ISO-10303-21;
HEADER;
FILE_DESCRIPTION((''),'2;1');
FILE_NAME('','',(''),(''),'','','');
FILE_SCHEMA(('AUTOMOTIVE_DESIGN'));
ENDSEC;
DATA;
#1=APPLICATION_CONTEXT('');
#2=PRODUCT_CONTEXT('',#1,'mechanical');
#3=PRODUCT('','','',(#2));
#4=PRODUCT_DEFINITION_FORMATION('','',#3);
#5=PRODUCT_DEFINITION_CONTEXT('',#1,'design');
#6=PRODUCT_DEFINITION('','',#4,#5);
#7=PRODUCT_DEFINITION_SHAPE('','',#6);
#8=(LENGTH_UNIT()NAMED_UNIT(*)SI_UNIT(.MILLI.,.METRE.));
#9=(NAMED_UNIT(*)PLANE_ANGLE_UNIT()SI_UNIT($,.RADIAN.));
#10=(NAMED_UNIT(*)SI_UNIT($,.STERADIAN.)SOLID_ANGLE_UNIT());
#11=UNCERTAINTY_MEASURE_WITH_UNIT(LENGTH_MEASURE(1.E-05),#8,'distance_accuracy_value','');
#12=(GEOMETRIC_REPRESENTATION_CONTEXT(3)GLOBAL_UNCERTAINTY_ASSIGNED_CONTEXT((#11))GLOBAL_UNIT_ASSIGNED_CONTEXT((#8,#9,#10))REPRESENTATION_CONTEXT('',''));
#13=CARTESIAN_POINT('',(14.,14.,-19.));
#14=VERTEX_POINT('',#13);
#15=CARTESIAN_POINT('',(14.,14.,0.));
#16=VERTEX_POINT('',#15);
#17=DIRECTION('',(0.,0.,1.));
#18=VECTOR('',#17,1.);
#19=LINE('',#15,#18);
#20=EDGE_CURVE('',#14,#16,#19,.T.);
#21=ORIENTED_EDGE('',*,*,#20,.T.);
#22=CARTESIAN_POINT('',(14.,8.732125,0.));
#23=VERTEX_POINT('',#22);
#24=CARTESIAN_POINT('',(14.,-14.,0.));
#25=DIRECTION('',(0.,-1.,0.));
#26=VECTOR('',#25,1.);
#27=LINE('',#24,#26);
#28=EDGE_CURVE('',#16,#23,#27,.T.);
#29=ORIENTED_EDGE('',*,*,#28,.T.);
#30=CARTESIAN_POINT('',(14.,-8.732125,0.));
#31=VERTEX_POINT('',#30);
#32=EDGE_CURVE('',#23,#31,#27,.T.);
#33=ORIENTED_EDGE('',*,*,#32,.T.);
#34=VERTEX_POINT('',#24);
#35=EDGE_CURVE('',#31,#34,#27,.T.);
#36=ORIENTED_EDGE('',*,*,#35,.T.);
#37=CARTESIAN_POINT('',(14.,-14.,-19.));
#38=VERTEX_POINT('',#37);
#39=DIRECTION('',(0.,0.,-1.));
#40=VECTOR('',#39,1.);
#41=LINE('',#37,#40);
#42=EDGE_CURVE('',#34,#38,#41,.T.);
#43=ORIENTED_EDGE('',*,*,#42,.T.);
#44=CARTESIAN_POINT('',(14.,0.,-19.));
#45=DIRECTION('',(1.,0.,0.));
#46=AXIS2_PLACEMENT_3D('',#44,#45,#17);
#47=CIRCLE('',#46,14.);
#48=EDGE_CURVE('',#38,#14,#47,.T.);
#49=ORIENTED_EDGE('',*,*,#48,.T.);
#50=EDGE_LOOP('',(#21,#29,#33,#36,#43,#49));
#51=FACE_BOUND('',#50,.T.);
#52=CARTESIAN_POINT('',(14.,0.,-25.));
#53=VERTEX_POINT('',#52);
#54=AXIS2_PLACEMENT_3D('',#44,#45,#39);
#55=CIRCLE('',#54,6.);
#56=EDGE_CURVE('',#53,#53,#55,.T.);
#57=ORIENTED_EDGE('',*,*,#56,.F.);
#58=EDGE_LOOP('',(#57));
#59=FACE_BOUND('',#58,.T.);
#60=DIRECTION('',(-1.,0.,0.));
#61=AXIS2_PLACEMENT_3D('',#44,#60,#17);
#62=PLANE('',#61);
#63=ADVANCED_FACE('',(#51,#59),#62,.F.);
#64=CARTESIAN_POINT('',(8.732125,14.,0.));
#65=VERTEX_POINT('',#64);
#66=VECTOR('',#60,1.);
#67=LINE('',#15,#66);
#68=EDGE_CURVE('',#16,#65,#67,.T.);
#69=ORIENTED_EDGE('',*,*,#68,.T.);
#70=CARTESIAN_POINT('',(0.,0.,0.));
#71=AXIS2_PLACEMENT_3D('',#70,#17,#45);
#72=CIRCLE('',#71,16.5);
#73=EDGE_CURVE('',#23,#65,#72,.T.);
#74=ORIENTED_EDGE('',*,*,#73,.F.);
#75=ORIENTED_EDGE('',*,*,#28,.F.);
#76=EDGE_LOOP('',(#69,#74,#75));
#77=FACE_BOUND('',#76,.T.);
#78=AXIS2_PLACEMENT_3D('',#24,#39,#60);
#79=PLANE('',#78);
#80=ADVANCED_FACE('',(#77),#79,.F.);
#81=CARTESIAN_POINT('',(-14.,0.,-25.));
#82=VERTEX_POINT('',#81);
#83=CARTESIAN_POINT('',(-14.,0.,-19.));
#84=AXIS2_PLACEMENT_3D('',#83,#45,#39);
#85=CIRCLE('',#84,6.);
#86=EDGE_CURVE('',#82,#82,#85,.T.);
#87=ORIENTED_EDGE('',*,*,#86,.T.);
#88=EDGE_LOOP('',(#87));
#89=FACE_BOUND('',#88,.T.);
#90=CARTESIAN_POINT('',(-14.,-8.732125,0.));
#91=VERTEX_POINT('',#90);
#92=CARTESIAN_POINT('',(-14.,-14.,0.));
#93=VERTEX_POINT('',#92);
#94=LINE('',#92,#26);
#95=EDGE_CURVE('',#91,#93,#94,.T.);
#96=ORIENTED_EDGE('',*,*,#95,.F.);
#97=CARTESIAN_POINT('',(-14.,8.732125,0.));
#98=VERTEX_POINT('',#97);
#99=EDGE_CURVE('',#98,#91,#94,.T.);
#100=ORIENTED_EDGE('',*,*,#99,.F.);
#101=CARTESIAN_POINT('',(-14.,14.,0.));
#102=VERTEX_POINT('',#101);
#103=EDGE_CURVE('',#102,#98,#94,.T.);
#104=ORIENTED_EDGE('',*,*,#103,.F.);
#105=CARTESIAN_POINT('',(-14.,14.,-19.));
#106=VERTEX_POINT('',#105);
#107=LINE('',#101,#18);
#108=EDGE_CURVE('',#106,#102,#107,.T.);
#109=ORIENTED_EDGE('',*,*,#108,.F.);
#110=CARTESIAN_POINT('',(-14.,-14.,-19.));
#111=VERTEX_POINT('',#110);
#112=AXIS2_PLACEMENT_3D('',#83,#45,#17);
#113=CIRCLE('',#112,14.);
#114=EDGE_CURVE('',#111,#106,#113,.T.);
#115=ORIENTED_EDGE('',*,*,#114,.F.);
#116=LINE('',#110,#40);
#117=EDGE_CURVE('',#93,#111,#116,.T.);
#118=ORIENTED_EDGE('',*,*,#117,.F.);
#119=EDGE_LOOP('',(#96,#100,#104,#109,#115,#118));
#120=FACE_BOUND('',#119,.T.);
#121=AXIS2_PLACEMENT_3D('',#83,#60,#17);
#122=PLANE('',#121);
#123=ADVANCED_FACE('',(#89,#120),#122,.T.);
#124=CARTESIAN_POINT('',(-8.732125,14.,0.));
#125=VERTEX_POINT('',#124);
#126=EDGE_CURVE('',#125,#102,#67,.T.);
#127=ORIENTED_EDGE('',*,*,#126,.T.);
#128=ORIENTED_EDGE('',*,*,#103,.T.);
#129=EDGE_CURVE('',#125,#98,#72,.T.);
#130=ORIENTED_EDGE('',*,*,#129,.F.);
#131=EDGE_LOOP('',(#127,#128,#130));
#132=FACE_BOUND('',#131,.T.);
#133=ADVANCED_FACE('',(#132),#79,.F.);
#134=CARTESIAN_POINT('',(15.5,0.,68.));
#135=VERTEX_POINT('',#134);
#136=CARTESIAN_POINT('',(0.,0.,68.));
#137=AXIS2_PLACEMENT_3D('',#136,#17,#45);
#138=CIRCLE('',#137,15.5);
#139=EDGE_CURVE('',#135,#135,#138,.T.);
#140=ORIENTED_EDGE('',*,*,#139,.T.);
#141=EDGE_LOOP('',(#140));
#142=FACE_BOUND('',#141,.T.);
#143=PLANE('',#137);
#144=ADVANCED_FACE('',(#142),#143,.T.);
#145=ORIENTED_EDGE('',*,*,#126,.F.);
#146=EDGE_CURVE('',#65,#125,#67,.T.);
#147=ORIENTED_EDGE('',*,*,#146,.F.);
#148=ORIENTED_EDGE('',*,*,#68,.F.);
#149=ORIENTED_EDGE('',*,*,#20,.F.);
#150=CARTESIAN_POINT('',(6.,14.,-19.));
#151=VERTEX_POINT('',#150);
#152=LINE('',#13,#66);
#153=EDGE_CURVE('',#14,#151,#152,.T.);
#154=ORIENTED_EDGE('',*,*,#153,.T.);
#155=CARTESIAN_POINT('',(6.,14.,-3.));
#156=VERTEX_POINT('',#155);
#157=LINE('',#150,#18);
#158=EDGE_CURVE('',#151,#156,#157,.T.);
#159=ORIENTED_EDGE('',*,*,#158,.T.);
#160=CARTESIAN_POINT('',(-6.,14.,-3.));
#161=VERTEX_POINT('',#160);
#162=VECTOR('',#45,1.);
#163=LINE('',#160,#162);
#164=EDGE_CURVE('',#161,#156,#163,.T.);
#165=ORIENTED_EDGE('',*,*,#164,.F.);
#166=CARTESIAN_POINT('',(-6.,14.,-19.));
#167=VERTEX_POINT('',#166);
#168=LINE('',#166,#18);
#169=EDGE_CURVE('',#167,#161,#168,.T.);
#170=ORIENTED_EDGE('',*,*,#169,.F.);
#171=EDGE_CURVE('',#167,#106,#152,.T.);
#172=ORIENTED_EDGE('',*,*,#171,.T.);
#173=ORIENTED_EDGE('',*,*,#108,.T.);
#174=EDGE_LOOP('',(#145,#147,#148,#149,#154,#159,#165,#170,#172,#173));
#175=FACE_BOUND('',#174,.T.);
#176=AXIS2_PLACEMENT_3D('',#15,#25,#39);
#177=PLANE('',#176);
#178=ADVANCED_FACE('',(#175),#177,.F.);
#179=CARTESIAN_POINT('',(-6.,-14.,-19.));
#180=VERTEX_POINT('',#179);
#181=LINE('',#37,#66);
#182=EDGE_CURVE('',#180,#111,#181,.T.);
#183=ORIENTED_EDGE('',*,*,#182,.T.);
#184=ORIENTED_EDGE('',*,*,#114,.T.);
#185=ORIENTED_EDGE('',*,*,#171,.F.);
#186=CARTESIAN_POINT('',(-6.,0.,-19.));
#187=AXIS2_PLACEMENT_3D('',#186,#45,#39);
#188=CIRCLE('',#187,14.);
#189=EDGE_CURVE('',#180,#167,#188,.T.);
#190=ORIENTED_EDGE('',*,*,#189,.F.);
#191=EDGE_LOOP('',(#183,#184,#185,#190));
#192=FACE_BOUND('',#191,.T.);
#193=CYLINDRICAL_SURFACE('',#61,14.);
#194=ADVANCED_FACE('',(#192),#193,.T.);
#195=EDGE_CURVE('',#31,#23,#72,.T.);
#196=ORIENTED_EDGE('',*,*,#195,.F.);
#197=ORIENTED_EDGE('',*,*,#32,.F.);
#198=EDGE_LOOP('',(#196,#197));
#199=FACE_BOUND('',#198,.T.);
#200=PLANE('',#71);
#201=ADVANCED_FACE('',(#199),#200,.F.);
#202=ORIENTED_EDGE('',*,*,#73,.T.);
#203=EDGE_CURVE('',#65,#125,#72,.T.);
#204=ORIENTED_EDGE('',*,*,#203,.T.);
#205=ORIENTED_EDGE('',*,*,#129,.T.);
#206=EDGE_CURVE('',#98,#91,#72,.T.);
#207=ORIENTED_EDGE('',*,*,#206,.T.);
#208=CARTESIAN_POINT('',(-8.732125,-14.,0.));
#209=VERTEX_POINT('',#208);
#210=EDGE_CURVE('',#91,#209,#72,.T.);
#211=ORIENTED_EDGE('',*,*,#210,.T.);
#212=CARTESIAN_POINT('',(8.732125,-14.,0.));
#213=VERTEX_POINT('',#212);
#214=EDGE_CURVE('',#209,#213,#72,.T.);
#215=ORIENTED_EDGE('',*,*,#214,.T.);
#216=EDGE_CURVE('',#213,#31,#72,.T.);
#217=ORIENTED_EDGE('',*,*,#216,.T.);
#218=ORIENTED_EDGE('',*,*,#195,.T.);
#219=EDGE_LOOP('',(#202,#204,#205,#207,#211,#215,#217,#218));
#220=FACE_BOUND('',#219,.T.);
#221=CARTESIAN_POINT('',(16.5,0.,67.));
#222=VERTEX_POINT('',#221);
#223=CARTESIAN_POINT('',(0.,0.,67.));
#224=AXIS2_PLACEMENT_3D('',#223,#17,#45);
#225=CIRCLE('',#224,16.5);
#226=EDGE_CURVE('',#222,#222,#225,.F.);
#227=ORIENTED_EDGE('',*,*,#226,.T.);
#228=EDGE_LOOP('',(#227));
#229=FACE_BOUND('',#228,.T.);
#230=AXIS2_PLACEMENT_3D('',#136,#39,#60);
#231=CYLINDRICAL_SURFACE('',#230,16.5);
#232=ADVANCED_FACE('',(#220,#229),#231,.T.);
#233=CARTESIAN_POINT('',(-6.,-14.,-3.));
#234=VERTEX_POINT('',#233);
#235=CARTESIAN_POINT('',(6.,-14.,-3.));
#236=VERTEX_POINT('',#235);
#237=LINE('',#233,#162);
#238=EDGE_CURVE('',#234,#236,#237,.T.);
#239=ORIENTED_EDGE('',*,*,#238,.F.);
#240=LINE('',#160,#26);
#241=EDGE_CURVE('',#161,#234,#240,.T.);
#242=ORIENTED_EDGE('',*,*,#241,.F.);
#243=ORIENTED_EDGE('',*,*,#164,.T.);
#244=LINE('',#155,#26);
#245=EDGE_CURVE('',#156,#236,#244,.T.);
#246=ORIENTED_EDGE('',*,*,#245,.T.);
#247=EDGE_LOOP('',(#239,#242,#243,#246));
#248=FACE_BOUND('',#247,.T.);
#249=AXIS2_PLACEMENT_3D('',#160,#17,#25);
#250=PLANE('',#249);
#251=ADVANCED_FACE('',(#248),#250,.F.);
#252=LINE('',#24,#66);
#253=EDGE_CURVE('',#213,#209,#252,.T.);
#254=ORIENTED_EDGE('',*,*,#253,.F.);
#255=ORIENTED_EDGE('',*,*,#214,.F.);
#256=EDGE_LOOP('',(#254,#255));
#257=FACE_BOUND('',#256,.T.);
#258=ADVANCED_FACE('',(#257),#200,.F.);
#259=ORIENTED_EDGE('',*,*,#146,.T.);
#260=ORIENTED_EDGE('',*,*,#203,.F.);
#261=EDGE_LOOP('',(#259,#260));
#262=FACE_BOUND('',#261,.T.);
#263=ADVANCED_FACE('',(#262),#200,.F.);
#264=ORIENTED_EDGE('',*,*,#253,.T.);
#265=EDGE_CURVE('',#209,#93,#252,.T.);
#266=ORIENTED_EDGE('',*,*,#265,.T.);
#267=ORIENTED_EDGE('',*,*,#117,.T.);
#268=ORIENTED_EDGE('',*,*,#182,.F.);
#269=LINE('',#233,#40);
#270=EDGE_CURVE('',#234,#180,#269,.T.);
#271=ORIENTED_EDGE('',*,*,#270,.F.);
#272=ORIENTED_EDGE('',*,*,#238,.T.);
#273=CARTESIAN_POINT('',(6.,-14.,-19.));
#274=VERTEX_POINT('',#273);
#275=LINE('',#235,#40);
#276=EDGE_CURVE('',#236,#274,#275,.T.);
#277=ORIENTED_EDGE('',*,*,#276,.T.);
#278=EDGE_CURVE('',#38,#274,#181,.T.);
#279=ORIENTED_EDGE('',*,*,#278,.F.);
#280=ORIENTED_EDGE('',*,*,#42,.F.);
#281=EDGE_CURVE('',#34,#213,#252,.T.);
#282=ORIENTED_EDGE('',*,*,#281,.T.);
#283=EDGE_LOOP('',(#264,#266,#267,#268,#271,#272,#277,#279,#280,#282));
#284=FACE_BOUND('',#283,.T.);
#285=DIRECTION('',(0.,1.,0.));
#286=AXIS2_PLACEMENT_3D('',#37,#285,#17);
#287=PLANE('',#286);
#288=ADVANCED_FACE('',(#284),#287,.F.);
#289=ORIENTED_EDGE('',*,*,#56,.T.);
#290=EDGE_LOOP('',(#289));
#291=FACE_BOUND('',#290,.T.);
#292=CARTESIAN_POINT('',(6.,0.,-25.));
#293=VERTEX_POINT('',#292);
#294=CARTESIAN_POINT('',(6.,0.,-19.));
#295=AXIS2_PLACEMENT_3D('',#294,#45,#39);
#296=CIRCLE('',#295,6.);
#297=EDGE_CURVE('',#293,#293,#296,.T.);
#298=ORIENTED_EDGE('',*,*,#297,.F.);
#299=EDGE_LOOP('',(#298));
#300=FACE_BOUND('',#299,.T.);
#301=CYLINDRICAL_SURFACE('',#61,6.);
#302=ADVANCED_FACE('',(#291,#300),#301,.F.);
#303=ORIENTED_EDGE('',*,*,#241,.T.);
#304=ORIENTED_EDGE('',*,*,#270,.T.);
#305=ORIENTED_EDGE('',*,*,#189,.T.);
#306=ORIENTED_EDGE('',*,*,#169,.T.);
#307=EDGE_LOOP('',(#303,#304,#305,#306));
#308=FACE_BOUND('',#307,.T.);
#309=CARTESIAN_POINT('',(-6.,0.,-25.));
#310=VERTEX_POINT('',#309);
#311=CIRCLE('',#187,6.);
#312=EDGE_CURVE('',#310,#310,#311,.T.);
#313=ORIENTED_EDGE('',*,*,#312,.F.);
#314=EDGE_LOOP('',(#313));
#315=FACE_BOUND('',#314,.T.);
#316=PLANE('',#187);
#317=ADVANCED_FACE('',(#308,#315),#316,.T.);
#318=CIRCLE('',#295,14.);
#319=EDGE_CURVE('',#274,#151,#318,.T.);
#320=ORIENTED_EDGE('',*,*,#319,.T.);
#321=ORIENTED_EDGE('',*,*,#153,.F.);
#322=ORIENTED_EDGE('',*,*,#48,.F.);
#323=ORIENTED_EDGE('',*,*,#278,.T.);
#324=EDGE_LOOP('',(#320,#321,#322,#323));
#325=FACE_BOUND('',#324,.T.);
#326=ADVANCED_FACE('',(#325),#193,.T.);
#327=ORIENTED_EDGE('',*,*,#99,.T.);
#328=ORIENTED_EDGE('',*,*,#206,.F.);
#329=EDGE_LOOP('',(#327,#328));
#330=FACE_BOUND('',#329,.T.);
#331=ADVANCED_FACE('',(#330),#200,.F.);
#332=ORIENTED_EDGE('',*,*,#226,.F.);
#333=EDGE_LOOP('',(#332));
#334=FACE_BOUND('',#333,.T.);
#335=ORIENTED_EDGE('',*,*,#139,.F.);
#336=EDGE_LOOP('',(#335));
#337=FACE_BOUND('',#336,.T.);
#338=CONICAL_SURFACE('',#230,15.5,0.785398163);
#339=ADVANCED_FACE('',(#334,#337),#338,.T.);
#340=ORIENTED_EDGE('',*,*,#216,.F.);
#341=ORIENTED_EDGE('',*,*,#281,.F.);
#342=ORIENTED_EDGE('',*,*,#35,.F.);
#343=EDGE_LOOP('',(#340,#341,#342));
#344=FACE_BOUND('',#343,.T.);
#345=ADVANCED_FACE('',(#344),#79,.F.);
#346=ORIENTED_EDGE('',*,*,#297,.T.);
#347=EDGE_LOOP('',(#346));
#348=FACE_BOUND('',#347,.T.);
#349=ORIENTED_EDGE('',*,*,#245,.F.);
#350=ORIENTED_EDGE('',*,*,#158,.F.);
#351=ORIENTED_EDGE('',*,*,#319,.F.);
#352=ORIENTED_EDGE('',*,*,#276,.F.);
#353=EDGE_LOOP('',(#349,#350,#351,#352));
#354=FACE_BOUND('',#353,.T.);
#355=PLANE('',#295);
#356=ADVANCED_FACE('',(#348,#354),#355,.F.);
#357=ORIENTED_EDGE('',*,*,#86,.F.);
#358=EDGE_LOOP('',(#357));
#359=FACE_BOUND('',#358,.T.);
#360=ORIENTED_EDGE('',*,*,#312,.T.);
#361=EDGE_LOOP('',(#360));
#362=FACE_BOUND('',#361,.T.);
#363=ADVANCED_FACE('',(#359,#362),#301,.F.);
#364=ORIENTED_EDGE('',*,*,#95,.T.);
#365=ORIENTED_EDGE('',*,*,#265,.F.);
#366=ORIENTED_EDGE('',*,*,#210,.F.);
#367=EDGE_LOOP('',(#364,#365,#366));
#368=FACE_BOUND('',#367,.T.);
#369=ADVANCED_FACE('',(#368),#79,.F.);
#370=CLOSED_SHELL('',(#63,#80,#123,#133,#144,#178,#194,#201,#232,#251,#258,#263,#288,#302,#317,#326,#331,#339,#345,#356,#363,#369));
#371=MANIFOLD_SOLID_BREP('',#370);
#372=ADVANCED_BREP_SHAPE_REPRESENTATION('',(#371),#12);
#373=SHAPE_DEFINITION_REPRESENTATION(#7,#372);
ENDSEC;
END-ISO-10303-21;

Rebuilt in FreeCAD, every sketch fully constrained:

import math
import FreeCAD as App
import Part
import Sketcher


def edges_at(feature, points):
    """Names of the edges that pass closest to the given points."""
    edges = feature.Shape.Edges
    near = lambda p: min(range(len(edges)), key=lambda i: edges[i].distToShape(Part.Vertex(*p))[0])
    return sorted({f"Edge{near(p) + 1}" for p in points})

doc = App.newDocument("Part")
params = doc.addObject("Spreadsheet::Sheet", "Params")
for row, (alias, value) in enumerate([
    ("sketch1_diameter", "33 mm"),
    ("pad1_length", "68 mm"),
    ("chamfer_size", "1 mm"),
    ("sketch2_diameter", "12 mm"),
    ("sketch2_radius", "14 mm"),
    ("sketch2_height", "19 mm"),
    ("pad2_length", "28 mm"),
    ("sketch3_radius", "14 mm"),
    ("sketch3_height", "16 mm"),
    ("pocket1_length", "12 mm"),
], start=1):
    params.set(f"A{row}", alias)
    params.set(f"B{row}", "=" + value)
    params.setAlias(f"B{row}", alias)

body = doc.addObject("PartDesign::Body", "Body")

# Sketch on XY plane
sketch1 = body.newObject("Sketcher::SketchObject", "Sketch")
sketch1.AttachmentSupport = (doc.getObject("XY_Plane"), [""])
sketch1.MapMode = "FlatFace"
sketch1.addGeometry(Part.Circle(App.Vector(0, 0, 0), App.Vector(0, 0, 1), 16), False)
sketch1.addConstraint(Sketcher.Constraint("Coincident", 0, 3, -1, 1))
sketch1.addConstraint(Sketcher.Constraint("Diameter", 0, 33.0))
sketch1.setExpression("Constraints[1]", "Params.sketch1_diameter")
pad1 = body.newObject("PartDesign::Pad", "Pad")
pad1.Profile = sketch1
pad1.setExpression("Length", "Params.pad1_length")
doc.recompute()

chamfer = body.newObject("PartDesign::Chamfer", "Chamfer")
chamfer.Base = (pad1, edges_at(pad1, [(-16.5, 0, 68)]))
chamfer.setExpression("Size", "Params.chamfer_size")

# Sketch on YZ plane
sketch2 = body.newObject("Sketcher::SketchObject", "Sketch001")
sketch2.AttachmentSupport = (doc.getObject("YZ_Plane"), [""])
sketch2.MapMode = "FlatFace"
sketch2.addGeometry(Part.LineSegment(App.Vector(14, -19, 0), App.Vector(14, 0, 0)), False)
sketch2.addGeometry(Part.LineSegment(App.Vector(14, 0, 0), App.Vector(-14, 0, 0)), False)
sketch2.addGeometry(Part.LineSegment(App.Vector(-14, 0, 0), App.Vector(-14, -19, 0)), False)
sketch2.addGeometry(Part.ArcOfCircle(Part.Circle(App.Vector(0, -19, 0), App.Vector(0, 0, 1), 14), math.radians(180), math.radians(360)), False)
sketch2.addGeometry(Part.Circle(App.Vector(0, -19, 0), App.Vector(0, 0, 1), 6), False)
sketch2.addConstraint(Sketcher.Constraint("Coincident", 0, 2, 1, 1))
sketch2.addConstraint(Sketcher.Constraint("Coincident", 1, 2, 2, 1))
sketch2.addConstraint(Sketcher.Constraint("Tangent", 2, 2, 3, 1))
sketch2.addConstraint(Sketcher.Constraint("Tangent", 3, 2, 0, 1))
sketch2.addConstraint(Sketcher.Constraint("Vertical", 0))
sketch2.addConstraint(Sketcher.Constraint("Horizontal", 1))
sketch2.addConstraint(Sketcher.Constraint("Vertical", 2))
sketch2.addConstraint(Sketcher.Constraint("Coincident", 4, 3, 3, 3))
sketch2.addConstraint(Sketcher.Constraint("Symmetric", 0, 2, 1, 2, -1, 1))
sketch2.addConstraint(Sketcher.Constraint("Diameter", 4, 12.0))
sketch2.addConstraint(Sketcher.Constraint("Radius", 3, 14.0))
sketch2.addConstraint(Sketcher.Constraint("DistanceY", 0, 1, 0, 2, 19.0))
sketch2.setExpression("Constraints[9]", "Params.sketch2_diameter")
sketch2.setExpression("Constraints[10]", "Params.sketch2_radius")
sketch2.setExpression("Constraints[11]", "Params.sketch2_height")
pad2 = body.newObject("PartDesign::Pad", "Pad001")
pad2.Profile = sketch2
pad2.setExpression("Length", "Params.pad2_length")
pad2.Midplane = True

# Sketch on YZ plane
sketch3 = body.newObject("Sketcher::SketchObject", "Sketch002")
sketch3.AttachmentSupport = (doc.getObject("YZ_Plane"), [""])
sketch3.MapMode = "FlatFace"
sketch3.addGeometry(Part.LineSegment(App.Vector(14, -3, 0), App.Vector(-14, -3, 0)), False)
sketch3.addGeometry(Part.LineSegment(App.Vector(-14, -3, 0), App.Vector(-14, -19, 0)), False)
sketch3.addGeometry(Part.ArcOfCircle(Part.Circle(App.Vector(0, -19, 0), App.Vector(0, 0, 1), 14), math.radians(180), math.radians(360)), False)
sketch3.addGeometry(Part.LineSegment(App.Vector(14, -19, 0), App.Vector(14, -3, 0)), False)
sketch3.addConstraint(Sketcher.Constraint("Coincident", 0, 2, 1, 1))
sketch3.addConstraint(Sketcher.Constraint("Tangent", 1, 2, 2, 1))
sketch3.addConstraint(Sketcher.Constraint("Tangent", 2, 2, 3, 1))
sketch3.addConstraint(Sketcher.Constraint("Coincident", 3, 2, 0, 1))
sketch3.addConstraint(Sketcher.Constraint("Horizontal", 0))
sketch3.addConstraint(Sketcher.Constraint("Vertical", 1))
sketch3.addConstraint(Sketcher.Constraint("Vertical", 3))
sketch3.addConstraint(Sketcher.Constraint("PointOnObject", 2, 3, -2))
sketch3.addConstraint(Sketcher.Constraint("Radius", 2, 14.0))
sketch3.addConstraint(Sketcher.Constraint("DistanceY", 1, 2, 1, 1, 16.0))
sketch3.addConstraint(Sketcher.Constraint("DistanceY", 2, 3, -1, 1, 19.0))
sketch3.setExpression("Constraints[8]", "Params.sketch3_radius")
sketch3.setExpression("Constraints[9]", "Params.sketch3_height")
pocket1 = body.newObject("PartDesign::Pocket", "Pocket")
pocket1.Profile = sketch3
pocket1.setExpression("Length", "Params.pocket1_length")
pocket1.Midplane = True

doc.recompute()
